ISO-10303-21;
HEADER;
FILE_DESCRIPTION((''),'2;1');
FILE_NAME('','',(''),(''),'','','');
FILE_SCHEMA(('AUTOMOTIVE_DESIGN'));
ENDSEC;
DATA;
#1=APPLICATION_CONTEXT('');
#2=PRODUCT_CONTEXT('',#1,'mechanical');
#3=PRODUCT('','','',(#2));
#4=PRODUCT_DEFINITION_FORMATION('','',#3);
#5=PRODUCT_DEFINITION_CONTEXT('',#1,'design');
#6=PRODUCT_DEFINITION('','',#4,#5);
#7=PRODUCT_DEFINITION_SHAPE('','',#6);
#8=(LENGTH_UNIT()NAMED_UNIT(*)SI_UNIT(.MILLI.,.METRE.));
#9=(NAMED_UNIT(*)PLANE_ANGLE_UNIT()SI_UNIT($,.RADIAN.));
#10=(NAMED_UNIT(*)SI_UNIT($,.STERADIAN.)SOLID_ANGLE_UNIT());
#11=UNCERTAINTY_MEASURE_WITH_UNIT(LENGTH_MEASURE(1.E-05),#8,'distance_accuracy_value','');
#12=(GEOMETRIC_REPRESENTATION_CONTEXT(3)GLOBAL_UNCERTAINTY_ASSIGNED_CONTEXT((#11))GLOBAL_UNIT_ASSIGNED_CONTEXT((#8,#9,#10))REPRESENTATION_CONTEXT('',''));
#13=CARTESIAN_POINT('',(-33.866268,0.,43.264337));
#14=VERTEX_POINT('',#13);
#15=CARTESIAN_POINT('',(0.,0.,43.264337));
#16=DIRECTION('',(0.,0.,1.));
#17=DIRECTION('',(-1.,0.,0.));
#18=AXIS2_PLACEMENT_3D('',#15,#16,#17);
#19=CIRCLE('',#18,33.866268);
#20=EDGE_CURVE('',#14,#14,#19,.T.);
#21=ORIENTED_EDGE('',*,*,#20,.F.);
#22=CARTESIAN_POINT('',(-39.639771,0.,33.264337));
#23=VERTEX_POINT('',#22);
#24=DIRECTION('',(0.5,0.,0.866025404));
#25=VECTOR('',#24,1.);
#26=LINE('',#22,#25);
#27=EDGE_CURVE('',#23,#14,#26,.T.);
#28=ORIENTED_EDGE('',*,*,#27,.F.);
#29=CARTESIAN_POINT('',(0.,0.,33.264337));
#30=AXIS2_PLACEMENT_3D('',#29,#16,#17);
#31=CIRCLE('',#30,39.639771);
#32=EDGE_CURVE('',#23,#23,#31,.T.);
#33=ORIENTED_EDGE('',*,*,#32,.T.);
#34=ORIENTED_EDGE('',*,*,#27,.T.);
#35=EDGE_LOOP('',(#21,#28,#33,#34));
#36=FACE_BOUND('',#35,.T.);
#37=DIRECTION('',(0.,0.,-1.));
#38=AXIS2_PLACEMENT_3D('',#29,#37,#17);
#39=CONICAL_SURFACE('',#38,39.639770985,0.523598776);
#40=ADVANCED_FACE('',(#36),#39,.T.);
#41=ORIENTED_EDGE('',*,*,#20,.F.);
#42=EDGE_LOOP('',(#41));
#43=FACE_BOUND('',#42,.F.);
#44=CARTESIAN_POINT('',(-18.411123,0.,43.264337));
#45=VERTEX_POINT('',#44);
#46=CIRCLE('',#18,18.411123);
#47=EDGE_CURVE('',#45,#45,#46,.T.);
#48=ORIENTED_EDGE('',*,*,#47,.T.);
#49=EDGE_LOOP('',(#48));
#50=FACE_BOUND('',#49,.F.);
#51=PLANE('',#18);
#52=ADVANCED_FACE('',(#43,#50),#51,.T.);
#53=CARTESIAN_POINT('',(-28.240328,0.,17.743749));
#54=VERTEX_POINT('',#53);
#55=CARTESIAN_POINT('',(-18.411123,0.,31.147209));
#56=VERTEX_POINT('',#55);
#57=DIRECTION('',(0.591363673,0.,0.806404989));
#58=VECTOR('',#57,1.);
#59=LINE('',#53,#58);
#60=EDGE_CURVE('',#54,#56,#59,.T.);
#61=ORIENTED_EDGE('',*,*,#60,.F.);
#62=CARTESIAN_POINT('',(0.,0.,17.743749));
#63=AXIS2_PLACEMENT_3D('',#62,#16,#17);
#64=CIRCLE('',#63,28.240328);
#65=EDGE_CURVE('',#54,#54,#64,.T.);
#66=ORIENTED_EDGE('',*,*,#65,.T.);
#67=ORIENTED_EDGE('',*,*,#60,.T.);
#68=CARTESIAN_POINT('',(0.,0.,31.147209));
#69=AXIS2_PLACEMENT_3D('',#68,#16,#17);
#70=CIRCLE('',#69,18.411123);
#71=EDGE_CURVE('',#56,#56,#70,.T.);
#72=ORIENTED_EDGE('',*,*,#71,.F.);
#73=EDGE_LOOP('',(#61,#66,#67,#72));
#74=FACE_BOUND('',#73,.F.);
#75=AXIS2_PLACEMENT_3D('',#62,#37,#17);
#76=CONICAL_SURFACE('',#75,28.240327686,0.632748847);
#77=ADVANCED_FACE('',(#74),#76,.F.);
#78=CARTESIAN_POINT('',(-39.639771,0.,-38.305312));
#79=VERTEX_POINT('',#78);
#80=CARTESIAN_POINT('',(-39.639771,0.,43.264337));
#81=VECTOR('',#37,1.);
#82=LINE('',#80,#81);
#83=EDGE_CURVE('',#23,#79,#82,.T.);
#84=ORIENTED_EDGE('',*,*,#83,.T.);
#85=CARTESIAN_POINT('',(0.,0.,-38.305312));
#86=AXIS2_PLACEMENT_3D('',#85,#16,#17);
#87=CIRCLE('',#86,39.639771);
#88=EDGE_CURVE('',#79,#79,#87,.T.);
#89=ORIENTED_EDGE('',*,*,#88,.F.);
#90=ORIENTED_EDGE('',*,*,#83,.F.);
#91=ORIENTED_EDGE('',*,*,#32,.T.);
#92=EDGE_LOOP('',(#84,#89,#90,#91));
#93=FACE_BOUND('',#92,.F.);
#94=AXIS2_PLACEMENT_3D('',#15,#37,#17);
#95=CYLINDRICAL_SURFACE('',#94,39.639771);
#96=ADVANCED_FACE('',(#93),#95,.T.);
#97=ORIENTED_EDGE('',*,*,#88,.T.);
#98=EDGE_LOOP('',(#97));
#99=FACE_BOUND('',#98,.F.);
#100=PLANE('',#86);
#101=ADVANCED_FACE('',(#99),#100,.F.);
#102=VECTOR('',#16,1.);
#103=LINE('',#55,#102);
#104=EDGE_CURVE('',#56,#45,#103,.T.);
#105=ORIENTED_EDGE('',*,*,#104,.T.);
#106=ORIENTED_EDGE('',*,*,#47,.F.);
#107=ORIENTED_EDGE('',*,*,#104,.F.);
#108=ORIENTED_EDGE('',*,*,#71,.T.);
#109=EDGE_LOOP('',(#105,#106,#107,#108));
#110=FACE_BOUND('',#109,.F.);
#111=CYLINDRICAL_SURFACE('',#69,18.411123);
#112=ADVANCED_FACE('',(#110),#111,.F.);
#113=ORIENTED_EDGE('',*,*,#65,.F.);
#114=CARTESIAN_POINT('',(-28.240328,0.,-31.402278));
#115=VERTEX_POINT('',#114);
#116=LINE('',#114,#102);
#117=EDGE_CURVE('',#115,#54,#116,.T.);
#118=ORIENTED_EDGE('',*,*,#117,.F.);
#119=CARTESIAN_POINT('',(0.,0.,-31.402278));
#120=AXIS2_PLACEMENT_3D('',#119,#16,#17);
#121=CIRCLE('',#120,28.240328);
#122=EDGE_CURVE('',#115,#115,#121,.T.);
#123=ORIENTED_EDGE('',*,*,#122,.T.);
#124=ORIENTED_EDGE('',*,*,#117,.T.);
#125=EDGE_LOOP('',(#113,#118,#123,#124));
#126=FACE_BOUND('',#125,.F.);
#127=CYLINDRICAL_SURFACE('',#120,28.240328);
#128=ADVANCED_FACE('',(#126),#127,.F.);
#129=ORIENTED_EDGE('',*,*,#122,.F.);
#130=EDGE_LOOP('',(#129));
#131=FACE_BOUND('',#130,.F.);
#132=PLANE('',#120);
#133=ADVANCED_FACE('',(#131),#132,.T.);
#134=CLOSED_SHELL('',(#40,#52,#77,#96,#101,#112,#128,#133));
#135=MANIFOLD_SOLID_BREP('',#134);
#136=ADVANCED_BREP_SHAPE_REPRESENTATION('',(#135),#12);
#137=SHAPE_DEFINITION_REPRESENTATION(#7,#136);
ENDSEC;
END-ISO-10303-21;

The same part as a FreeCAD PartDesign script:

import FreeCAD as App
import Part
import Sketcher


def edges_at(feature, points):
    """Names of the edges that pass closest to the given points."""
    edges = feature.Shape.Edges
    near = lambda p: min(range(len(edges)), key=lambda i: edges[i].distToShape(Part.Vertex(*p))[0])
    return sorted({f"Edge{near(p) + 1}" for p in points})


def add_polygon(sketch, points):
    """Adds a closed chain of lines whose ends are joined by coincident constraints."""
    first, n = sketch.GeometryCount, len(points)
    for a, b in zip(points, points[1:] + points[:1]):
        sketch.addGeometry(Part.LineSegment(App.Vector(*a, 0), App.Vector(*b, 0)), False)
    for i in range(n):
        sketch.addConstraint(Sketcher.Constraint("Coincident", first + i, 2, first + (i + 1) % n, 1))

doc = App.newDocument("Part")
body = doc.addObject("PartDesign::Body", "Body")

# Sketch on XZ plane
sketch1 = body.newObject("Sketcher::SketchObject", "Sketch")
sketch1.AttachmentSupport = (doc.getObject("XZ_Plane"), [""])
sketch1.MapMode = "FlatFace"
add_polygon(sketch1, [(-18, 43), (-40, 43), (-40, -38), (0, -38), (0, -31), (-28, -31), (-28, 18), (-18, 31)])  # lines 0-7
sketch1.addConstraint(Sketcher.Constraint("Horizontal", 0))
sketch1.addConstraint(Sketcher.Constraint("Vertical", 1))
sketch1.addConstraint(Sketcher.Constraint("Horizontal", 2))
sketch1.addConstraint(Sketcher.Constraint("Vertical", 3))
sketch1.addConstraint(Sketcher.Constraint("Horizontal", 4))
sketch1.addConstraint(Sketcher.Constraint("Vertical", 5))
sketch1.addConstraint(Sketcher.Constraint("Vertical", 7))
sketch1.addConstraint(Sketcher.Constraint("PointOnObject", 2, 2, -2))
sketch1.addConstraint(Sketcher.Constraint("DistanceX", 2, 1, 2, 2, 39.639771))
sketch1.addConstraint(Sketcher.Constraint("DistanceY", 1, 2, 1, 1, 81.569649))
sketch1.addConstraint(Sketcher.Constraint("Distance", 6, 16.621252))
sketch1.addConstraint(Sketcher.Constraint("DistanceX", 0, 2, 0, 1, 21.228648))
sketch1.addConstraint(Sketcher.Constraint("DistanceX", 4, 2, 4, 1, 28.240328))
sketch1.addConstraint(Sketcher.Constraint("DistanceY", 3, 1, 3, 2, 6.903035))
sketch1.addConstraint(Sketcher.Constraint("DistanceY", 5, 1, 5, 2, 49.146026))
sketch1.addConstraint(Sketcher.Constraint("DistanceY", -1, 1, 5, 2, 17.743749))
revolution = body.newObject("PartDesign::Revolution", "Revolution")
revolution.Profile = sketch1
revolution.ReferenceAxis = (sketch1, ["V_Axis"])
revolution.Angle = 360
doc.recompute()

chamfer = body.newObject("PartDesign::Chamfer", "Chamfer")
chamfer.Base = (revolution, edges_at(revolution, [(39.64, 0, 43.264)]))
chamfer.ChamferType = "Two distances"
chamfer.Size = 10
chamfer.Size2 = 5.773503
chamfer.FlipDirection = True

doc.recompute()
